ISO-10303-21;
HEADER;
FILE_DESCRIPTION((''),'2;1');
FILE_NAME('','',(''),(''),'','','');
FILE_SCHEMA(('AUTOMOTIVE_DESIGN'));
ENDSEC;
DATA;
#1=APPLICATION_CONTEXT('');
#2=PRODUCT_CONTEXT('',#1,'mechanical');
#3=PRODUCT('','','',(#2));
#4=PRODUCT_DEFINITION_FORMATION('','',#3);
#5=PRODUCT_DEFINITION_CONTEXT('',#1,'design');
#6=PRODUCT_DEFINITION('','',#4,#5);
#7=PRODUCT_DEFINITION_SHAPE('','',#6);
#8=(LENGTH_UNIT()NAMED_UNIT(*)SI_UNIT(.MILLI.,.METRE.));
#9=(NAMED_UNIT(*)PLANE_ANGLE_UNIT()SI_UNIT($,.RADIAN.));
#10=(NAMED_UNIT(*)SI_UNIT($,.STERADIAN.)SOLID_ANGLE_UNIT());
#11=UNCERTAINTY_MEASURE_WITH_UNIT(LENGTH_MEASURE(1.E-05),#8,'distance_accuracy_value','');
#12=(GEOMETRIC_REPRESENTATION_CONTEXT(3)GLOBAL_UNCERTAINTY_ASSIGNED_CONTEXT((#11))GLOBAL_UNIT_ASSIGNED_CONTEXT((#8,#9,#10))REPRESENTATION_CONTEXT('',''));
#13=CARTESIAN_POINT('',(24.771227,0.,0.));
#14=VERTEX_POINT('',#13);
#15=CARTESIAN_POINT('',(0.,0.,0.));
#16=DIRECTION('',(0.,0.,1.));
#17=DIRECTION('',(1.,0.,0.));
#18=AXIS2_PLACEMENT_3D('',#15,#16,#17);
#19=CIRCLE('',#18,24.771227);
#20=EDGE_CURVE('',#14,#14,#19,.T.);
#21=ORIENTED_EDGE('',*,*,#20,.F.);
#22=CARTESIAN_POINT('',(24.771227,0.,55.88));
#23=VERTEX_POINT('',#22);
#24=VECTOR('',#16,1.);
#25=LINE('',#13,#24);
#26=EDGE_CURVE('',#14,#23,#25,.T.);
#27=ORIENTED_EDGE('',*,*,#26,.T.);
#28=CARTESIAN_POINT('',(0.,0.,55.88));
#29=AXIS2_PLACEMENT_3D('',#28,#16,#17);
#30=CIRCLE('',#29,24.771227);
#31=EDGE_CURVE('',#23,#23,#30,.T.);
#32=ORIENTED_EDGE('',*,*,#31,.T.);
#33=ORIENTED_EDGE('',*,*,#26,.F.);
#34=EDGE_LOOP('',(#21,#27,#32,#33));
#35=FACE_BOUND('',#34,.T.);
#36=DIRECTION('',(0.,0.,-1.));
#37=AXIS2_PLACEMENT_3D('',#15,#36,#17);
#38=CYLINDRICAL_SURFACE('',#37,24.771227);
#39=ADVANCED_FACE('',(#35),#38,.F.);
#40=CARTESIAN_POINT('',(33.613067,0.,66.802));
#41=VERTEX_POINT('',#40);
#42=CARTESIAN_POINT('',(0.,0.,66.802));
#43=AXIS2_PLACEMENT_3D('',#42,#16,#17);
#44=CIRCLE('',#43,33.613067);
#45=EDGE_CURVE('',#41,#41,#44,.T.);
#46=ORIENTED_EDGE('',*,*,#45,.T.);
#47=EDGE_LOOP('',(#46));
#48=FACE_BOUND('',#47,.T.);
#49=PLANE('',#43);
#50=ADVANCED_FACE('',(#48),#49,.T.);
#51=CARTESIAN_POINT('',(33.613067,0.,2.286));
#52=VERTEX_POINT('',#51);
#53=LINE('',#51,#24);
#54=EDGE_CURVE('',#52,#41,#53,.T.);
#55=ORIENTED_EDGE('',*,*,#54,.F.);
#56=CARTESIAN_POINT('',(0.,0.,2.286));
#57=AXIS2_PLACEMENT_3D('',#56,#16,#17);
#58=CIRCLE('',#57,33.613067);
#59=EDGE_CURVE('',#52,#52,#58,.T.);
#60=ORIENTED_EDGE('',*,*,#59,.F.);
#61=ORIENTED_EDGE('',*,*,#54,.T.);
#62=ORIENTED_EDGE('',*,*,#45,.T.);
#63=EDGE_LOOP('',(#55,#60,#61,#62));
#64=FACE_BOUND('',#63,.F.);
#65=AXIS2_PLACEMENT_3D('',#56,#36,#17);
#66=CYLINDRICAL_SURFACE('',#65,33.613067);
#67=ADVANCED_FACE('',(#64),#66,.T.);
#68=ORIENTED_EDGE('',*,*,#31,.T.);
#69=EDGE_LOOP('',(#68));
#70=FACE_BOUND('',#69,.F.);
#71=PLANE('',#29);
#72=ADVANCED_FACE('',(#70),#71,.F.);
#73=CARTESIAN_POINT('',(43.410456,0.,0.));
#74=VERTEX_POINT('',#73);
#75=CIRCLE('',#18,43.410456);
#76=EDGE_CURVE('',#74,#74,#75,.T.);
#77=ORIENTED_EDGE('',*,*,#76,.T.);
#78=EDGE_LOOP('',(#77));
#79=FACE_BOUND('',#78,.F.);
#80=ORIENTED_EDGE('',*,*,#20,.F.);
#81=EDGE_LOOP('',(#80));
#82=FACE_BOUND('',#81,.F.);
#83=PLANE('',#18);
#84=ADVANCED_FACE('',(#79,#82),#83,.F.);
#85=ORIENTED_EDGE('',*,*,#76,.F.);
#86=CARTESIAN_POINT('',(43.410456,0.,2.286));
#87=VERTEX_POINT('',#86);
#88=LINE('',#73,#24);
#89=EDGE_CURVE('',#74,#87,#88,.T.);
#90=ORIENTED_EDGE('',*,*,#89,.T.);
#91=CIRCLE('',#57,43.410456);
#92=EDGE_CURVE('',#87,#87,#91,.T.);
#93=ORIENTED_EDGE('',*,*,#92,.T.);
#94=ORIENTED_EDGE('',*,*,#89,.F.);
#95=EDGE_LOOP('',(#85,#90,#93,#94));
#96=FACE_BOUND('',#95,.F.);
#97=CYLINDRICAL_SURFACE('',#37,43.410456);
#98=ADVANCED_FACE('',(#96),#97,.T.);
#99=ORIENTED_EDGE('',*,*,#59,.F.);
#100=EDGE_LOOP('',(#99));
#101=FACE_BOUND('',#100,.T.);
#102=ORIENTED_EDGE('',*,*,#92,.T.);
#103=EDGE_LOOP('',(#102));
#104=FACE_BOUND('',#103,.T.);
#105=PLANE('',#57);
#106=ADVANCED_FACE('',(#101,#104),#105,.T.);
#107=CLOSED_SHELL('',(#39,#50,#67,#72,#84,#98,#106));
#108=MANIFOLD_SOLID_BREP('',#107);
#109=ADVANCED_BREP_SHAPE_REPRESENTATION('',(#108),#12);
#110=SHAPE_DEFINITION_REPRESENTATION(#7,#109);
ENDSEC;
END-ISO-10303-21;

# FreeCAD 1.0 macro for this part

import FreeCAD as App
import Part
import Sketcher
Q = App.Units.Quantity

doc = App.newDocument("Part")
params = doc.addObject("Spreadsheet::Sheet", "Params")
for row, (alias, value) in enumerate([
    ("pad1_length", "0.09 in"),
    ("pad2_length", "2.54 in"),
    ("pocket1_length", "2.2 in"),
], start=1):
    params.set(f"A{row}", alias)
    params.set(f"B{row}", "=" + value)
    params.setAlias(f"B{row}", alias)

body = doc.addObject("PartDesign::Body", "Body")

sketch1 = doc.addObject("Sketcher::SketchObject", "Sketch")
body.addObject(sketch1)
sketch1.AttachmentSupport = (doc.XY_Plane, [""])
sketch1.MapMode = "FlatFace"
sketch1.addGeometry(Part.Circle(App.Vector(0, 0, 0), App.Vector(0, 0, 1), 43.410456), False)
sketch1.addConstraint(Sketcher.Constraint("Coincident", 0, 3, -1, 1))
sketch1.addConstraint(Sketcher.Constraint("Diameter", 0, Q("86.820912 mm")))
pad1 = doc.addObject("PartDesign::Pad", "Pad")
body.addObject(pad1)
pad1.Profile = sketch1
pad1.setExpression("Length", "Params.pad1_length")

sketch2 = doc.addObject("Sketcher::SketchObject", "Sketch001")
body.addObject(sketch2)
sketch2.AttachmentSupport = (doc.XY_Plane, [""])
sketch2.MapMode = "FlatFace"
sketch2.AttachmentOffset = App.Placement(App.Vector(0, 0, 0.09 * 25.4), App.Rotation())
sketch2.addGeometry(Part.Circle(App.Vector(0, 0, 0), App.Vector(0, 0, 1), 33.613067), False)
sketch2.addConstraint(Sketcher.Constraint("Coincident", 0, 3, -1, 1))
sketch2.addConstraint(Sketcher.Constraint("Diameter", 0, Q("67.226134 mm")))
pad2 = doc.addObject("PartDesign::Pad", "Pad001")
body.addObject(pad2)
pad2.Profile = sketch2
pad2.setExpression("Length", "Params.pad2_length")

sketch3 = doc.addObject("Sketcher::SketchObject", "Sketch002")
body.addObject(sketch3)
sketch3.AttachmentSupport = (doc.XY_Plane, [""])
sketch3.MapMode = "FlatFace"
sketch3.addGeometry(Part.Circle(App.Vector(0, 0, 0), App.Vector(0, 0, 1), 24.771227), False)
sketch3.addConstraint(Sketcher.Constraint("Coincident", 0, 3, -1, 1))
sketch3.addConstraint(Sketcher.Constraint("Diameter", 0, Q("49.542454 mm")))
pocket1 = doc.addObject("PartDesign::Pocket", "Pocket")
body.addObject(pocket1)
pocket1.Profile = sketch3
pocket1.setExpression("Length", "Params.pocket1_length")
pocket1.Reversed = True

doc.recompute()
